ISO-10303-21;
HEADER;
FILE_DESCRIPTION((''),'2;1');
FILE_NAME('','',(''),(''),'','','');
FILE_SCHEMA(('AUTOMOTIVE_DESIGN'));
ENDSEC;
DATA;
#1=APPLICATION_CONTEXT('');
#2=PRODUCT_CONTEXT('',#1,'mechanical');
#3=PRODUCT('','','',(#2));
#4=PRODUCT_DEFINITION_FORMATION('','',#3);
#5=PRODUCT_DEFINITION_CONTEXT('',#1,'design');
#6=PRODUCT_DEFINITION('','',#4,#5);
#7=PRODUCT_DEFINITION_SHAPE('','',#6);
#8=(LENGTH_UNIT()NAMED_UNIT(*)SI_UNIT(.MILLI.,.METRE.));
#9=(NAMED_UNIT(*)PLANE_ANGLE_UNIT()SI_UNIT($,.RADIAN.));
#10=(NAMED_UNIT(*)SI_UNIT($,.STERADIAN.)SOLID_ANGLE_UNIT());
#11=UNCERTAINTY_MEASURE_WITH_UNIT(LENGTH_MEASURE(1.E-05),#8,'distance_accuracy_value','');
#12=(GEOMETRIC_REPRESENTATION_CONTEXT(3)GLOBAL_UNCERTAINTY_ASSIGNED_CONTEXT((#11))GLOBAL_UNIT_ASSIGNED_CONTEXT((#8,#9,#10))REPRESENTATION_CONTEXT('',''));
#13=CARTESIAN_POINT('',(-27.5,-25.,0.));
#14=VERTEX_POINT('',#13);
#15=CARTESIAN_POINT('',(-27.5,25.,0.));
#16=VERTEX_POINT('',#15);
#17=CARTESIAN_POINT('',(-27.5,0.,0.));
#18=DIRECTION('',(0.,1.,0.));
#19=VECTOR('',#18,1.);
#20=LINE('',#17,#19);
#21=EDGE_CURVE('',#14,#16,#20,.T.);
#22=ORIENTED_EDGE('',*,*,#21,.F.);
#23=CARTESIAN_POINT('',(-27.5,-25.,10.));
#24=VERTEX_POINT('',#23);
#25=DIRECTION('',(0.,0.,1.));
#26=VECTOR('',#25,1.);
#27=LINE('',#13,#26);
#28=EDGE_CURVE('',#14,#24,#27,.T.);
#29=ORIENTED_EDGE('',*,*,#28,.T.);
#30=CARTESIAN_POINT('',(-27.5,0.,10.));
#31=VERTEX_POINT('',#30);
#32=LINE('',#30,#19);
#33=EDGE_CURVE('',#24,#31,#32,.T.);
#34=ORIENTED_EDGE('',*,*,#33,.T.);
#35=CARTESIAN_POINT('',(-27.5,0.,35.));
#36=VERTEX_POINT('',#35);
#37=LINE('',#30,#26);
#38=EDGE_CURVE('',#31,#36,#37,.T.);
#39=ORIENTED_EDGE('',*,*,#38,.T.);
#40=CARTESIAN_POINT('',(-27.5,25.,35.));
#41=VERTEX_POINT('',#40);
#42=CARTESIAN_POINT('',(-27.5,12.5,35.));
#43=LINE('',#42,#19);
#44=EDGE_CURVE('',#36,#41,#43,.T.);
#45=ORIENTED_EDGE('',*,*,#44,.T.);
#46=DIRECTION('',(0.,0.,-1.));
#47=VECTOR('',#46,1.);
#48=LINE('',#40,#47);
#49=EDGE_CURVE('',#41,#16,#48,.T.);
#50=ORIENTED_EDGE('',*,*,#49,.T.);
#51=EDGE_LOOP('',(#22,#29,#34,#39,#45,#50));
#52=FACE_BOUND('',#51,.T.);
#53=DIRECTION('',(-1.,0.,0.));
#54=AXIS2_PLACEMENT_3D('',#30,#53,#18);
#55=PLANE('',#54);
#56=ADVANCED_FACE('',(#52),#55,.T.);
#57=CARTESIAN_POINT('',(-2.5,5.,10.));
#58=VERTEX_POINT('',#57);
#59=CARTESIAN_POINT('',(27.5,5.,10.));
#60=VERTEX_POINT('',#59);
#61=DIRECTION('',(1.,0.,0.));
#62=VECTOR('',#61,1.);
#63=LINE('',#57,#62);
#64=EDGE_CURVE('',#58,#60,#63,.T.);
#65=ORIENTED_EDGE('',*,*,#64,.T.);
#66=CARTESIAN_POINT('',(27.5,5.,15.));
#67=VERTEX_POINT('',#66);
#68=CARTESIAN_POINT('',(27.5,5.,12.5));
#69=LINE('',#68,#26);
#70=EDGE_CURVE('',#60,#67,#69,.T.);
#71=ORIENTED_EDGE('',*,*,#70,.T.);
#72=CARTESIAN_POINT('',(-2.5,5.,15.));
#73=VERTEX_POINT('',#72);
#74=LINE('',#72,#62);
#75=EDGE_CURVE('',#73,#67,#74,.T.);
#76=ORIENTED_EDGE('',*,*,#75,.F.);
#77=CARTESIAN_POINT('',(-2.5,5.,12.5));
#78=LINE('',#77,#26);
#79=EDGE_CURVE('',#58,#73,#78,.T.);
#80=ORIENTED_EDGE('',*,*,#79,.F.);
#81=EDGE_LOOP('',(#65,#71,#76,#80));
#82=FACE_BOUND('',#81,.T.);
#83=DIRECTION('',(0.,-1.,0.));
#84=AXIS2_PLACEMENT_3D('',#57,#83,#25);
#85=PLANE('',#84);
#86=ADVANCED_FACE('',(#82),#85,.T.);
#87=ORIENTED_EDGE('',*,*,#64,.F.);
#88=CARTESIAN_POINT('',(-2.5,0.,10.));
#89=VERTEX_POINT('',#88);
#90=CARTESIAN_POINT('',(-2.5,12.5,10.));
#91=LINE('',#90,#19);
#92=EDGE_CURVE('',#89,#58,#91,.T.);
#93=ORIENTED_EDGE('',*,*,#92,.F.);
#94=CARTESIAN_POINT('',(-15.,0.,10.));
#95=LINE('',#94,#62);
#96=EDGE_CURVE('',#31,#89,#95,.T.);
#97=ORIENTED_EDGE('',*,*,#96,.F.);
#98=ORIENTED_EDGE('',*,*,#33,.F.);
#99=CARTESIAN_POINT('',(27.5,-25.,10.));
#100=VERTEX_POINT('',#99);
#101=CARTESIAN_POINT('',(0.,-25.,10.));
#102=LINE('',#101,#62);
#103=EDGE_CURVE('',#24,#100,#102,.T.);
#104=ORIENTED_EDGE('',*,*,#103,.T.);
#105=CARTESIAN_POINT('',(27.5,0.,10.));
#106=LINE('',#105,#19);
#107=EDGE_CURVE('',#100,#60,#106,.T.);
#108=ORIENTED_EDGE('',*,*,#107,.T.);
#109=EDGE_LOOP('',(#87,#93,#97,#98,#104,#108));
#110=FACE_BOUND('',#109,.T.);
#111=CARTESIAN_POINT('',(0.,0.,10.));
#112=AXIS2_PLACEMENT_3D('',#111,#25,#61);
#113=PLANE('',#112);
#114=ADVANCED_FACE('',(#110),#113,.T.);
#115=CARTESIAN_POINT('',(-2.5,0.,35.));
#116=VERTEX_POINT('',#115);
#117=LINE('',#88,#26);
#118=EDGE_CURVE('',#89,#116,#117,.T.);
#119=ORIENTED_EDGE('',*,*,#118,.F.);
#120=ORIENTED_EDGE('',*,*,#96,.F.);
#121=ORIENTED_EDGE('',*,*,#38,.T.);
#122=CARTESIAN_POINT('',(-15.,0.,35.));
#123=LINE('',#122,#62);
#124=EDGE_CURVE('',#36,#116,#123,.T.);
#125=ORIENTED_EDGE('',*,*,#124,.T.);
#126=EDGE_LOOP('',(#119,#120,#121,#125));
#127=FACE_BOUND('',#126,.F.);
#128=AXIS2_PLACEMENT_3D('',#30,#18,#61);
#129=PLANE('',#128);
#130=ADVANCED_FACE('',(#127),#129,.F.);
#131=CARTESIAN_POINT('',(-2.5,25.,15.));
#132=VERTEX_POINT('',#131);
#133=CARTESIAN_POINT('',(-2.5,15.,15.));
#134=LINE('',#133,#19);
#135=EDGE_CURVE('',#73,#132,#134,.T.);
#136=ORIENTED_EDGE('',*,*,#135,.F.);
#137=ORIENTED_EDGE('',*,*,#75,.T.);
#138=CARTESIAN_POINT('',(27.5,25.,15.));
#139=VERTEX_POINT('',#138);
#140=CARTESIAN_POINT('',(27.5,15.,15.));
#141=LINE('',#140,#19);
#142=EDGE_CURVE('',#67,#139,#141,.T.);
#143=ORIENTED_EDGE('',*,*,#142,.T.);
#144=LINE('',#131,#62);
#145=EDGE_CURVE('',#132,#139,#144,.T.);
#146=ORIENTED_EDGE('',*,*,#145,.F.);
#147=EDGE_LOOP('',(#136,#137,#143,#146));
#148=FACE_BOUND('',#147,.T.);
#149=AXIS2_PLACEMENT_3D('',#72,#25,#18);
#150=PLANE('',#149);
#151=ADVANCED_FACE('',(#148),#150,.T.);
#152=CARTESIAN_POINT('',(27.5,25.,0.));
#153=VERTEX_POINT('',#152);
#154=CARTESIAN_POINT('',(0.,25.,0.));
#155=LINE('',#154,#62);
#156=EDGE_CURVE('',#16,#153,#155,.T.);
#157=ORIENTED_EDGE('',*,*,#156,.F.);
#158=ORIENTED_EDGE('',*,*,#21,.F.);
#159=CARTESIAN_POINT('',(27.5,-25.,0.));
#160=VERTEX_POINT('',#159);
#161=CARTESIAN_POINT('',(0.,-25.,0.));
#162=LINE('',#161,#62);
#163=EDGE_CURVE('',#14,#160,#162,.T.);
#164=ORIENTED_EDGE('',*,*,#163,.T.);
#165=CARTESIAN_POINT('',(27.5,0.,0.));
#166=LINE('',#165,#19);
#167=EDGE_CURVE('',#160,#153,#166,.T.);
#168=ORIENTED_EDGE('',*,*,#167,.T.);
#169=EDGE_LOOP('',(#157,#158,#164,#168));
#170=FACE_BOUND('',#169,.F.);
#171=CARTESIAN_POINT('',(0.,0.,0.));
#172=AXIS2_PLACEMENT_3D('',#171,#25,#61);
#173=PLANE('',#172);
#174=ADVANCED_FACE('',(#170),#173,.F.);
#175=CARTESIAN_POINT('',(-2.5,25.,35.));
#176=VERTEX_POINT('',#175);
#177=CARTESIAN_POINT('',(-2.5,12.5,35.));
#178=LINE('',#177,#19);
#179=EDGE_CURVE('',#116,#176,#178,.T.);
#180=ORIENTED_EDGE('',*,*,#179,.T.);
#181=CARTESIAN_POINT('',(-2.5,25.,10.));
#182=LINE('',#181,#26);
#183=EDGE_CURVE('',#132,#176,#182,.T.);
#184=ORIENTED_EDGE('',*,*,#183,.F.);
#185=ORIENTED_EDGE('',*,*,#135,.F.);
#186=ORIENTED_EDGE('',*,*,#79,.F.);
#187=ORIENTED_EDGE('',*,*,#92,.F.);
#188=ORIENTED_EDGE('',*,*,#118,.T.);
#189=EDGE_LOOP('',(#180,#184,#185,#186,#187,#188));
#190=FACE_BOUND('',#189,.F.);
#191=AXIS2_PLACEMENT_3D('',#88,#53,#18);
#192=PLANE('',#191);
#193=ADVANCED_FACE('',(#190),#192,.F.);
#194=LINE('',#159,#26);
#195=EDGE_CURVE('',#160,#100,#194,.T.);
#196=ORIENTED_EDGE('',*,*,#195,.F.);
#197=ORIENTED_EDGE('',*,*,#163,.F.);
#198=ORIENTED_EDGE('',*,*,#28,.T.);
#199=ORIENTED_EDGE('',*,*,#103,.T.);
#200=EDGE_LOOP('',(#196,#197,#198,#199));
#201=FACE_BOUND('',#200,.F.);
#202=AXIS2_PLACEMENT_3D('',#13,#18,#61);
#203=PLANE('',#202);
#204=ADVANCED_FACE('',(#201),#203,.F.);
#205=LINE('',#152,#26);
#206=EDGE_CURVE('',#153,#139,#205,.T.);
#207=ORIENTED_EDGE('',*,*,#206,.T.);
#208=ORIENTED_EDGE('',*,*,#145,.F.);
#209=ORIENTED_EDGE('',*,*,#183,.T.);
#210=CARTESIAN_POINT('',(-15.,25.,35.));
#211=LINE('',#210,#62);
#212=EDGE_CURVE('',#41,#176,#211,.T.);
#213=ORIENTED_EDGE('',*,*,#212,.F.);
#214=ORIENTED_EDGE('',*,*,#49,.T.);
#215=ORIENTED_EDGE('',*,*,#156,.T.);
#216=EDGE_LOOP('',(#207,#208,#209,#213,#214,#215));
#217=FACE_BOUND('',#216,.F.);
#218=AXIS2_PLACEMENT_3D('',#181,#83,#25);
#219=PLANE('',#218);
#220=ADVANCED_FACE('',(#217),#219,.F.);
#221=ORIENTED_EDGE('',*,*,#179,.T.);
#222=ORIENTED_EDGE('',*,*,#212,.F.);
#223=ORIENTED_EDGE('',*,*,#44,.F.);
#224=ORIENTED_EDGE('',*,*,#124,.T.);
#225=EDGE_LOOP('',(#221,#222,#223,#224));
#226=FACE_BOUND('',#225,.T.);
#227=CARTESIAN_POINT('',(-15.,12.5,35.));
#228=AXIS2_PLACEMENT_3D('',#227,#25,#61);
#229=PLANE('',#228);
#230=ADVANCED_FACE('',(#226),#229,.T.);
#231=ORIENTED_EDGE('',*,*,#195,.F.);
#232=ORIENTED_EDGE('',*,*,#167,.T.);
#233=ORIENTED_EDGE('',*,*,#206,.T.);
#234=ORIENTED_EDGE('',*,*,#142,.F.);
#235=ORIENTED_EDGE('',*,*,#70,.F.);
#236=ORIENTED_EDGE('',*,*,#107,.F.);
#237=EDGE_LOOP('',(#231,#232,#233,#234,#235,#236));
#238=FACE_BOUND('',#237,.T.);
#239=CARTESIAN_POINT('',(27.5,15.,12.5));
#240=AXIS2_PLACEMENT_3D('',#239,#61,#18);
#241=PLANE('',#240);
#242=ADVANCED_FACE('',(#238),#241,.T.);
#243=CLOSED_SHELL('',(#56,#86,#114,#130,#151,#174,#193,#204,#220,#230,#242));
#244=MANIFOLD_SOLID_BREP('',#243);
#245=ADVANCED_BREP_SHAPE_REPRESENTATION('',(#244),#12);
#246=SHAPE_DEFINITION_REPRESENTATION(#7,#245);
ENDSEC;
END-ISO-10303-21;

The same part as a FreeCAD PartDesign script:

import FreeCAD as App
import Part
import Sketcher

V = App.Vector

doc = App.newDocument("Part")
body = doc.addObject("PartDesign::Body", "Body")

sketch1 = doc.addObject("Sketcher::SketchObject", "Sketch")
body.addObject(sketch1)
sketch1.AttachmentSupport = (doc.XY_Plane, [""])
sketch1.MapMode = "FlatFace"
sketch1.addGeometry(Part.LineSegment(V(-28, 25, 0), V(-28, -25, 0)), False)
sketch1.addGeometry(Part.LineSegment(V(-28, -25, 0), V(28, -25, 0)), False)
sketch1.addGeometry(Part.LineSegment(V(28, -25, 0), V(28, 25, 0)), False)
sketch1.addGeometry(Part.LineSegment(V(28, 25, 0), V(-28, 25, 0)), False)
sketch1.addConstraint(Sketcher.Constraint("Coincident", 0, 2, 1, 1))
sketch1.addConstraint(Sketcher.Constraint("Coincident", 1, 2, 2, 1))
sketch1.addConstraint(Sketcher.Constraint("Coincident", 2, 2, 3, 1))
sketch1.addConstraint(Sketcher.Constraint("Coincident", 3, 2, 0, 1))
sketch1.addConstraint(Sketcher.Constraint("Vertical", 0))
sketch1.addConstraint(Sketcher.Constraint("Horizontal", 1))
sketch1.addConstraint(Sketcher.Constraint("Vertical", 2))
sketch1.addConstraint(Sketcher.Constraint("Horizontal", 3))
sketch1.addConstraint(Sketcher.Constraint("Symmetric", 0, 2, 2, 2, -1, 1))
sketch1.addConstraint(Sketcher.Constraint("DistanceX", 1, 1, 1, 2, 55.0))
sketch1.addConstraint(Sketcher.Constraint("DistanceY", 0, 2, 0, 1, 50.0))
pad1 = doc.addObject("PartDesign::Pad", "Pad")
body.addObject(pad1)
pad1.Profile = sketch1
pad1.Length = 10

sketch2 = doc.addObject("Sketcher::SketchObject", "Sketch001")
body.addObject(sketch2)
sketch2.AttachmentSupport = (doc.XY_Plane, [""])
sketch2.MapMode = "FlatFace"
sketch2.AttachmentOffset = App.Placement(V(0, 0, 10), App.Rotation())
sketch2.addGeometry(Part.LineSegment(V(-28, 25, 0), V(-28, 0, 0)), False)
sketch2.addGeometry(Part.LineSegment(V(-28, 0, 0), V(-2, 0, 0)), False)
sketch2.addGeometry(Part.LineSegment(V(-2, 0, 0), V(-2, 25, 0)), False)
sketch2.addGeometry(Part.LineSegment(V(-2, 25, 0), V(-28, 25, 0)), False)
sketch2.addConstraint(Sketcher.Constraint("Coincident", 0, 2, 1, 1))
sketch2.addConstraint(Sketcher.Constraint("Coincident", 1, 2, 2, 1))
sketch2.addConstraint(Sketcher.Constraint("Coincident", 2, 2, 3, 1))
sketch2.addConstraint(Sketcher.Constraint("Coincident", 3, 2, 0, 1))
sketch2.addConstraint(Sketcher.Constraint("Vertical", 0))
sketch2.addConstraint(Sketcher.Constraint("Horizontal", 1))
sketch2.addConstraint(Sketcher.Constraint("Vertical", 2))
sketch2.addConstraint(Sketcher.Constraint("Horizontal", 3))
sketch2.addConstraint(Sketcher.Constraint("PointOnObject", 0, 2, -1))
sketch2.addConstraint(Sketcher.Constraint("Equal", 3, 0))
sketch2.addConstraint(Sketcher.Constraint("DistanceX", 1, 1, 1, 2, 25.0))
sketch2.addConstraint(Sketcher.Constraint("DistanceX", 0, 2, -1, 1, 27.5))
pad2 = doc.addObject("PartDesign::Pad", "Pad001")
body.addObject(pad2)
pad2.Profile = sketch2
pad2.Length = 25

sketch3 = doc.addObject("Sketcher::SketchObject", "Sketch002")
body.addObject(sketch3)
sketch3.AttachmentSupport = (doc.YZ_Plane, [""])
sketch3.MapMode = "FlatFace"
sketch3.AttachmentOffset = App.Placement(V(0, 0, -2.5), App.Rotation())
sketch3.addGeometry(Part.LineSegment(V(5, 15, 0), V(5, 10, 0)), False)
sketch3.addGeometry(Part.LineSegment(V(5, 10, 0), V(25, 10, 0)), False)
sketch3.addGeometry(Part.LineSegment(V(25, 10, 0), V(25, 15, 0)), False)
sketch3.addGeometry(Part.LineSegment(V(25, 15, 0), V(5, 15, 0)), False)
sketch3.addConstraint(Sketcher.Constraint("Coincident", 0, 2, 1, 1))
sketch3.addConstraint(Sketcher.Constraint("Coincident", 1, 2, 2, 1))
sketch3.addConstraint(Sketcher.Constraint("Coincident", 2, 2, 3, 1))
sketch3.addConstraint(Sketcher.Constraint("Coincident", 3, 2, 0, 1))
sketch3.addConstraint(Sketcher.Constraint("Vertical", 0))
sketch3.addConstraint(Sketcher.Constraint("Horizontal", 1))
sketch3.addConstraint(Sketcher.Constraint("Vertical", 2))
sketch3.addConstraint(Sketcher.Constraint("Horizontal", 3))
sketch3.addConstraint(Sketcher.Constraint("DistanceX", 1, 1, 1, 2, 20.0))
sketch3.addConstraint(Sketcher.Constraint("DistanceY", 0, 2, 0, 1, 5.0))
sketch3.addConstraint(Sketcher.Constraint("DistanceX", -1, 1, 0, 2, 5.0))
sketch3.addConstraint(Sketcher.Constraint("DistanceY", -1, 1, 0, 2, 10.0))
pad3 = doc.addObject("PartDesign::Pad", "Pad002")
body.addObject(pad3)
pad3.Profile = sketch3
pad3.Length = 30

doc.recompute()
